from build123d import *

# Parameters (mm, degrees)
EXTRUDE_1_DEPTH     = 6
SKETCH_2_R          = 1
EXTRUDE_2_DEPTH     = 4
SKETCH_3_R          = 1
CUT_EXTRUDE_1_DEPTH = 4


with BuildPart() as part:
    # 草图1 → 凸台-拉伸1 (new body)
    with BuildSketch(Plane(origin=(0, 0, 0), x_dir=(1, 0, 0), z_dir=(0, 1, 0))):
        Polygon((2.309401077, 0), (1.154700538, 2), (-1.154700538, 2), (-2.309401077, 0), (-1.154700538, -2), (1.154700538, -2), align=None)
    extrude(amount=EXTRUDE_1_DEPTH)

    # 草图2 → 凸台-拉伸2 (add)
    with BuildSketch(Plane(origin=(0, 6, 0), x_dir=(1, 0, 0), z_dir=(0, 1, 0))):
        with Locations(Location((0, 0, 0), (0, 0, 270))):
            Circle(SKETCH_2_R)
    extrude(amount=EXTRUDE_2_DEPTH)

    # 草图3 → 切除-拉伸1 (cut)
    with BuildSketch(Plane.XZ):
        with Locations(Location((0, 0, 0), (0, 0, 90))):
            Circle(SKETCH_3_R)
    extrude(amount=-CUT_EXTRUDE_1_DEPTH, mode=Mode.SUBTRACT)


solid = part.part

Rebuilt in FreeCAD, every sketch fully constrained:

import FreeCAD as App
import Part
import Sketcher
from FreeCAD import Vector
Q = App.Units.Quantity


def add_polygon(sketch, points):
    """Adds a closed chain of lines whose ends are joined by coincident constraints."""
    first, n = sketch.GeometryCount, len(points)
    for a, b in zip(points, points[1:] + points[:1]):
        sketch.addGeometry(Part.LineSegment(App.Vector(*a, 0), App.Vector(*b, 0)), False)
    for i in range(n):
        sketch.addConstraint(Sketcher.Constraint("Coincident", first + i, 2, first + (i + 1) % n, 1))

doc = App.newDocument("Part")
params = doc.addObject("Spreadsheet::Sheet", "Params")
for row, (alias, value) in enumerate([
    ("pad1_length", "6 mm"),
    ("sketch2_diameter", "2 mm"),
    ("pad2_length", "4 mm"),
    ("sketch3_diameter", "2 mm"),
    ("pocket1_length", "4 mm"),
], start=1):
    params.set(f"A{row}", alias)
    params.set(f"B{row}", "=" + value)
    params.setAlias(f"B{row}", alias)

body = doc.addObject("PartDesign::Body", "Body")

sketch1 = doc.addObject("Sketcher::SketchObject", "Sketch")
body.addObject(sketch1)
sketch1.AttachmentSupport = (doc.XZ_Plane, [""])
sketch1.MapMode = "FlatFace"
add_polygon(sketch1, [(2.309401, 0), (1.154701, -2), (-1.154701, -2), (-2.309401, 0), (-1.154701, 2), (1.154701, 2)])
sketch1.addConstraint(Sketcher.Constraint("Horizontal", 1))
sketch1.addConstraint(Sketcher.Constraint("Horizontal", 4))
sketch1.addConstraint(Sketcher.Constraint("Symmetric", 0, 2, 3, 2, -1, 1))
sketch1.addConstraint(Sketcher.Constraint("Symmetric", 2, 2, 5, 2, -1, 1))
sketch1.addConstraint(Sketcher.Constraint("PointOnObject", 2, 2, -1))
sketch1.addConstraint(Sketcher.Constraint("Parallel", 2, 5))
sketch1.addConstraint(Sketcher.Constraint("Vertical", 1, 2, 3, 2))
sketch1.addConstraint(Sketcher.Constraint("Angle", 0, Q("-120 deg")))
sketch1.addConstraint(Sketcher.Constraint("DistanceY", 0, 2, -1, 1, 2.0))
sketch1.addConstraint(Sketcher.Constraint("DistanceX", 1, 2, 1, 1, 2.309401))
pad1 = doc.addObject("PartDesign::Pad", "Pad")
body.addObject(pad1)
pad1.Profile = sketch1
pad1.setExpression("Length", "Params.pad1_length")
pad1.Reversed = True

sketch2 = doc.addObject("Sketcher::SketchObject", "Sketch001")
body.addObject(sketch2)
sketch2.AttachmentSupport = (doc.XZ_Plane, [""])
sketch2.MapMode = "FlatFace"
sketch2.AttachmentOffset = App.Placement(Vector(0, 0, -6), App.Rotation())
sketch2.addGeometry(Part.Circle(Vector(0, 0, 0), Vector(0, 0, 1), 1), False)
sketch2.addConstraint(Sketcher.Constraint("Coincident", 0, 3, -1, 1))
sketch2.addConstraint(Sketcher.Constraint("Diameter", 0, 2.0))
sketch2.setExpression("Constraints[1]", "Params.sketch2_diameter")
pad2 = doc.addObject("PartDesign::Pad", "Pad001")
body.addObject(pad2)
pad2.Profile = sketch2
pad2.setExpression("Length", "Params.pad2_length")
pad2.Reversed = True

sketch3 = doc.addObject("Sketcher::SketchObject", "Sketch002")
body.addObject(sketch3)
sketch3.AttachmentSupport = (doc.XZ_Plane, [""])
sketch3.MapMode = "FlatFace"
sketch3.addGeometry(Part.Circle(Vector(0, 0, 0), Vector(0, 0, 1), 1), False)
sketch3.addConstraint(Sketcher.Constraint("Coincident", 0, 3, -1, 1))
sketch3.addConstraint(Sketcher.Constraint("Diameter", 0, 2.0))
sketch3.setExpression("Constraints[1]", "Params.sketch3_diameter")
pocket1 = doc.addObject("PartDesign::Pocket", "Pocket")
body.addObject(pocket1)
pocket1.Profile = sketch3
pocket1.setExpression("Length", "Params.pocket1_length")

doc.recompute()
